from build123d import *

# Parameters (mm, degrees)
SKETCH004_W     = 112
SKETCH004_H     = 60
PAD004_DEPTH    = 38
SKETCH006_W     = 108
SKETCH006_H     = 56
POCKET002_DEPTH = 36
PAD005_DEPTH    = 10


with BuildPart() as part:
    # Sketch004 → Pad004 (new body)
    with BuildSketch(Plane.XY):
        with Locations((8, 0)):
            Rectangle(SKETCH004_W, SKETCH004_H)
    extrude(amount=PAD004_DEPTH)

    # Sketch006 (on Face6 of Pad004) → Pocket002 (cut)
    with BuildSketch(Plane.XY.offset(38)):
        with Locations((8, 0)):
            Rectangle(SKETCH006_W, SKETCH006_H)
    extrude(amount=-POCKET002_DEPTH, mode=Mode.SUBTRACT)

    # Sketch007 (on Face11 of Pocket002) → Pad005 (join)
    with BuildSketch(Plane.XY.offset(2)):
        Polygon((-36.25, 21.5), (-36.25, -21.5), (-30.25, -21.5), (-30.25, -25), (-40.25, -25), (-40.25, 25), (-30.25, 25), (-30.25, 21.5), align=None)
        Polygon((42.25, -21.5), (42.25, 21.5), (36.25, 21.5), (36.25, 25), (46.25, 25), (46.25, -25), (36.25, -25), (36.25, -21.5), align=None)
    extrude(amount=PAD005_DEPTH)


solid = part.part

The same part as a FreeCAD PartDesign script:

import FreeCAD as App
import Part
import Sketcher

doc = App.newDocument("Part")
body = doc.addObject("PartDesign::Body", "Body")

# Sketch on XY plane
sketch1 = body.newObject("Sketcher::SketchObject", "Sketch")
sketch1.AttachmentSupport = (doc.getObject("XY_Plane"), [""])
sketch1.MapMode = "FlatFace"
sketch1.addGeometry([
    Part.LineSegment(App.Vector(-48, 30, 0), App.Vector(-48, -30, 0)),
    Part.LineSegment(App.Vector(-48, -30, 0), App.Vector(64, -30, 0)),
    Part.LineSegment(App.Vector(64, -30, 0), App.Vector(64, 30, 0)),
    Part.LineSegment(App.Vector(64, 30, 0), App.Vector(-48, 30, 0)),
], False)
sketch1.addConstraint([
    Sketcher.Constraint("Coincident", 0, 2, 1, 1),
    Sketcher.Constraint("Coincident", 1, 2, 2, 1),
    Sketcher.Constraint("Coincident", 2, 2, 3, 1),
    Sketcher.Constraint("Coincident", 3, 2, 0, 1),
    Sketcher.Constraint("Vertical", 0),
    Sketcher.Constraint("Horizontal", 1),
    Sketcher.Constraint("Vertical", 2),
    Sketcher.Constraint("Horizontal", 3),
    Sketcher.Constraint("DistanceX", 1, 1, 1, 2, 112.0),
    Sketcher.Constraint("DistanceY", 0, 2, 0, 1, 60.0),
    Sketcher.Constraint("DistanceX", 0, 2, -1, 1, 48.0),
    Sketcher.Constraint("DistanceY", 0, 2, -1, 1, 30.0),
])
pad1 = body.newObject("PartDesign::Pad", "Pad")
pad1.Profile = sketch1
pad1.Length = 38

# Sketch on XY plane
sketch2 = body.newObject("Sketcher::SketchObject", "Sketch001")
sketch2.AttachmentSupport = (doc.getObject("XY_Plane"), [""])
sketch2.MapMode = "FlatFace"
sketch2.AttachmentOffset = App.Placement(App.Vector(0, 0, 38), App.Rotation())
sketch2.addGeometry([
    Part.LineSegment(App.Vector(-46, 28, 0), App.Vector(-46, -28, 0)),
    Part.LineSegment(App.Vector(-46, -28, 0), App.Vector(62, -28, 0)),
    Part.LineSegment(App.Vector(62, -28, 0), App.Vector(62, 28, 0)),
    Part.LineSegment(App.Vector(62, 28, 0), App.Vector(-46, 28, 0)),
], False)
sketch2.addConstraint([
    Sketcher.Constraint("Coincident", 0, 2, 1, 1),
    Sketcher.Constraint("Coincident", 1, 2, 2, 1),
    Sketcher.Constraint("Coincident", 2, 2, 3, 1),
    Sketcher.Constraint("Coincident", 3, 2, 0, 1),
    Sketcher.Constraint("Vertical", 0),
    Sketcher.Constraint("Horizontal", 1),
    Sketcher.Constraint("Vertical", 2),
    Sketcher.Constraint("Horizontal", 3),
    Sketcher.Constraint("DistanceX", 1, 1, 1, 2, 108.0),
    Sketcher.Constraint("DistanceY", 0, 2, 0, 1, 56.0),
    Sketcher.Constraint("DistanceX", 0, 2, -1, 1, 46.0),
    Sketcher.Constraint("DistanceY", 0, 2, -1, 1, 28.0),
])
pocket1 = body.newObject("PartDesign::Pocket", "Pocket")
pocket1.Profile = sketch2
pocket1.Length = 36

# Sketch on XY plane
sketch3 = body.newObject("Sketcher::SketchObject", "Sketch002")
sketch3.AttachmentSupport = (doc.getObject("XY_Plane"), [""])
sketch3.MapMode = "FlatFace"
sketch3.AttachmentOffset = App.Placement(App.Vector(0, 0, 2), App.Rotation())
sketch3.addGeometry([
    Part.LineSegment(App.Vector(-36.25, -21.5, 0), App.Vector(-36.25, 21.5, 0)),  # 0
    Part.LineSegment(App.Vector(-36.25, 21.5, 0), App.Vector(-30.25, 21.5, 0)),  # 1
    Part.LineSegment(App.Vector(-30.25, 21.5, 0), App.Vector(-30.25, 25, 0)),  # 2
    Part.LineSegment(App.Vector(-30.25, 25, 0), App.Vector(-40.25, 25, 0)),  # 3
    Part.LineSegment(App.Vector(-40.25, 25, 0), App.Vector(-40.25, -25, 0)),  # 4
    Part.LineSegment(App.Vector(-40.25, -25, 0), App.Vector(-30.25, -25, 0)),  # 5
    Part.LineSegment(App.Vector(-30.25, -25, 0), App.Vector(-30.25, -21.5, 0)),  # 6
    Part.LineSegment(App.Vector(-30.25, -21.5, 0), App.Vector(-36.25, -21.5, 0)),  # 7
    Part.LineSegment(App.Vector(42.25, 21.5, 0), App.Vector(42.25, -21.5, 0)),  # 8
    Part.LineSegment(App.Vector(42.25, -21.5, 0), App.Vector(36.25, -21.5, 0)),  # 9
    Part.LineSegment(App.Vector(36.25, -21.5, 0), App.Vector(36.25, -25, 0)),  # 10
    Part.LineSegment(App.Vector(36.25, -25, 0), App.Vector(46.25, -25, 0)),  # 11
    Part.LineSegment(App.Vector(46.25, -25, 0), App.Vector(46.25, 25, 0)),  # 12
    Part.LineSegment(App.Vector(46.25, 25, 0), App.Vector(36.25, 25, 0)),  # 13
    Part.LineSegment(App.Vector(36.25, 25, 0), App.Vector(36.25, 21.5, 0)),  # 14
    Part.LineSegment(App.Vector(36.25, 21.5, 0), App.Vector(42.25, 21.5, 0)),  # 15
], False)
sketch3.addConstraint([
    Sketcher.Constraint("Coincident", 0, 2, 1, 1),
    Sketcher.Constraint("Coincident", 1, 2, 2, 1),
    Sketcher.Constraint("Coincident", 2, 2, 3, 1),
    Sketcher.Constraint("Coincident", 3, 2, 4, 1),
    Sketcher.Constraint("Coincident", 4, 2, 5, 1),
    Sketcher.Constraint("Coincident", 5, 2, 6, 1),
    Sketcher.Constraint("Coincident", 6, 2, 7, 1),
    Sketcher.Constraint("Coincident", 7, 2, 0, 1),
    Sketcher.Constraint("Coincident", 8, 2, 9, 1),
    Sketcher.Constraint("Coincident", 9, 2, 10, 1),
    Sketcher.Constraint("Coincident", 10, 2, 11, 1),
    Sketcher.Constraint("Coincident", 11, 2, 12, 1),
    Sketcher.Constraint("Coincident", 12, 2, 13, 1),
    Sketcher.Constraint("Coincident", 13, 2, 14, 1),
    Sketcher.Constraint("Coincident", 14, 2, 15, 1),
    Sketcher.Constraint("Coincident", 15, 2, 8, 1),
    Sketcher.Constraint("Vertical", 0),
    Sketcher.Constraint("Horizontal", 1),
    Sketcher.Constraint("Vertical", 2),
    Sketcher.Constraint("Horizontal", 3),
    Sketcher.Constraint("Vertical", 4),
    Sketcher.Constraint("Horizontal", 5),
    Sketcher.Constraint("Vertical", 6),
    Sketcher.Constraint("Horizontal", 7),
    Sketcher.Constraint("Vertical", 8),
    Sketcher.Constraint("Horizontal", 9),
    Sketcher.Constraint("Vertical", 10),
    Sketcher.Constraint("Horizontal", 11),
    Sketcher.Constraint("Vertical", 12),
    Sketcher.Constraint("Horizontal", 13),
    Sketcher.Constraint("Vertical", 14),
    Sketcher.Constraint("Horizontal", 15),
    Sketcher.Constraint("Symmetric", 0, 2, 9, 2, -1, 1),
    Sketcher.Constraint("Symmetric", 7, 2, 14, 2, -1, 1),
    Sketcher.Constraint("Symmetric", 2, 2, 5, 2, -1),
    Sketcher.Constraint("Horizontal", 7, 2, 8, 2),
    Sketcher.Constraint("Horizontal", 5, 2, 10, 2),
    Sketcher.Constraint("Horizontal", 3, 2, 12, 2),
    Sketcher.Constraint("Equal", 7, 9),
    Sketcher.Constraint("Equal", 5, 11),
    Sketcher.Constraint("DistanceX", 1, 1, 1, 2, 6.0),
    Sketcher.Constraint("DistanceX", 3, 2, 3, 1, 10.0),
    Sketcher.Constraint("DistanceY", 0, 1, 0, 2, 43.0),
    Sketcher.Constraint("DistanceY", 4, 2, 4, 1, 50.0),
    Sketcher.Constraint("DistanceX", 6, 2, 8, 2, 72.5),
])
pad2 = body.newObject("PartDesign::Pad", "Pad001")
pad2.Profile = sketch3
pad2.Length = 10

doc.recompute()
